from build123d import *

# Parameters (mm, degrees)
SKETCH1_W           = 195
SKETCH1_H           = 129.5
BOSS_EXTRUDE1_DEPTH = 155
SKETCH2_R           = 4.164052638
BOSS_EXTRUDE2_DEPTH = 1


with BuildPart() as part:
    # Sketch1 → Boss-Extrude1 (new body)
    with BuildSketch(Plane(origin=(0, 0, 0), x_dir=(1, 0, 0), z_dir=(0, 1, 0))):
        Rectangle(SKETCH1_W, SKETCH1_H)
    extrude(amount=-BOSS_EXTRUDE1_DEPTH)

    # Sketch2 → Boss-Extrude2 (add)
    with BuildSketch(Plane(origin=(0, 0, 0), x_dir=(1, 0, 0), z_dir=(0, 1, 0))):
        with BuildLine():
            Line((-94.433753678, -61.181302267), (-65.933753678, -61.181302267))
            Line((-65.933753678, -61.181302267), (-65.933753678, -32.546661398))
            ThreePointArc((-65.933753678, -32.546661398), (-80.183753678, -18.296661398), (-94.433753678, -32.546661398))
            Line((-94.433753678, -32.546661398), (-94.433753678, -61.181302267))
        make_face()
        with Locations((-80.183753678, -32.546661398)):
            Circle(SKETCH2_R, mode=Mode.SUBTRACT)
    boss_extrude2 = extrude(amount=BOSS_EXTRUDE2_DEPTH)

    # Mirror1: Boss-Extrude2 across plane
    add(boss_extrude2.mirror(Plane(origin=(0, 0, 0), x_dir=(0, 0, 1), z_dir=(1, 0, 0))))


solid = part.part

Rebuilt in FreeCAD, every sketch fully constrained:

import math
import FreeCAD as App
import Part
import Sketcher

doc = App.newDocument("Part")
body = doc.addObject("PartDesign::Body", "Body")

# Sketch on XZ plane
sketch1 = doc.addObject("Sketcher::SketchObject", "Sketch")
body.addObject(sketch1)
sketch1.AttachmentSupport = (doc.XZ_Plane, [""])
sketch1.MapMode = "FlatFace"
sketch1.addGeometry(Part.LineSegment(App.Vector(-98, -65, 0), App.Vector(-98, 65, 0)), False)
sketch1.addGeometry(Part.LineSegment(App.Vector(-98, 65, 0), App.Vector(98, 65, 0)), False)
sketch1.addGeometry(Part.LineSegment(App.Vector(98, 65, 0), App.Vector(98, -65, 0)), False)
sketch1.addGeometry(Part.LineSegment(App.Vector(98, -65, 0), App.Vector(-98, -65, 0)), False)
sketch1.addConstraint(Sketcher.Constraint("Coincident", 0, 2, 1, 1))
sketch1.addConstraint(Sketcher.Constraint("Coincident", 1, 2, 2, 1))
sketch1.addConstraint(Sketcher.Constraint("Coincident", 2, 2, 3, 1))
sketch1.addConstraint(Sketcher.Constraint("Coincident", 3, 2, 0, 1))
sketch1.addConstraint(Sketcher.Constraint("Vertical", 0))
sketch1.addConstraint(Sketcher.Constraint("Horizontal", 1))
sketch1.addConstraint(Sketcher.Constraint("Vertical", 2))
sketch1.addConstraint(Sketcher.Constraint("Horizontal", 3))
sketch1.addConstraint(Sketcher.Constraint("Symmetric", 0, 2, 2, 2, -1, 1))
sketch1.addConstraint(Sketcher.Constraint("DistanceX", 1, 1, 1, 2, 195.0))
sketch1.addConstraint(Sketcher.Constraint("DistanceY", 0, 1, 0, 2, 129.5))
pad1 = doc.addObject("PartDesign::Pad", "Pad")
body.addObject(pad1)
pad1.Profile = sketch1
pad1.Length = 155

# Sketch on XZ plane
sketch2 = doc.addObject("Sketcher::SketchObject", "Sketch001")
body.addObject(sketch2)
sketch2.AttachmentSupport = (doc.XZ_Plane, [""])
sketch2.MapMode = "FlatFace"
sketch2.addGeometry(Part.LineSegment(App.Vector(-94.4, 61.2, 0), App.Vector(-65.9, 61.2, 0)), False)
sketch2.addGeometry(Part.LineSegment(App.Vector(-65.9, 61.2, 0), App.Vector(-65.9, 32.5, 0)), False)
sketch2.addGeometry(Part.ArcOfCircle(Part.Circle(App.Vector(-80.2, 32.5, 0), App.Vector(0, 0, 1), 14.2), math.radians(180), math.radians(360)), False)
sketch2.addGeometry(Part.LineSegment(App.Vector(-94.4, 32.5, 0), App.Vector(-94.4, 61.2, 0)), False)
sketch2.addGeometry(Part.Circle(App.Vector(-80.2, 32.5, 0), App.Vector(0, 0, 1), 4.2), False)
sketch2.addConstraint(Sketcher.Constraint("Coincident", 0, 2, 1, 1))
sketch2.addConstraint(Sketcher.Constraint("Tangent", 1, 2, 2, 2))
sketch2.addConstraint(Sketcher.Constraint("Tangent", 2, 1, 3, 1))
sketch2.addConstraint(Sketcher.Constraint("Coincident", 3, 2, 0, 1))
sketch2.addConstraint(Sketcher.Constraint("Horizontal", 0))
sketch2.addConstraint(Sketcher.Constraint("Vertical", 1))
sketch2.addConstraint(Sketcher.Constraint("Vertical", 3))
sketch2.addConstraint(Sketcher.Constraint("Coincident", 4, 3, 2, 3))
sketch2.addConstraint(Sketcher.Constraint("Radius", 2, 14.25))
sketch2.addConstraint(Sketcher.Constraint("Diameter", 4, 8.328105))
sketch2.addConstraint(Sketcher.Constraint("DistanceY", 1, 2, 1, 1, 28.634641))
sketch2.addConstraint(Sketcher.Constraint("DistanceY", -1, 1, 2, 3, 32.546661))
sketch2.addConstraint(Sketcher.Constraint("DistanceX", 2, 3, -1, 1, 80.183754))
pad2 = doc.addObject("PartDesign::Pad", "Pad001")
body.addObject(pad2)
pad2.Profile = sketch2
pad2.Length = 1
pad2.Reversed = True
doc.recompute()

mirrored = doc.addObject("PartDesign::Mirrored", "Mirrored")
body.addObject(mirrored)
mirrored.Originals = [pad2]
mirrored.MirrorPlane = (doc.YZ_Plane, [""])
body.Tip = mirrored

doc.recompute()
